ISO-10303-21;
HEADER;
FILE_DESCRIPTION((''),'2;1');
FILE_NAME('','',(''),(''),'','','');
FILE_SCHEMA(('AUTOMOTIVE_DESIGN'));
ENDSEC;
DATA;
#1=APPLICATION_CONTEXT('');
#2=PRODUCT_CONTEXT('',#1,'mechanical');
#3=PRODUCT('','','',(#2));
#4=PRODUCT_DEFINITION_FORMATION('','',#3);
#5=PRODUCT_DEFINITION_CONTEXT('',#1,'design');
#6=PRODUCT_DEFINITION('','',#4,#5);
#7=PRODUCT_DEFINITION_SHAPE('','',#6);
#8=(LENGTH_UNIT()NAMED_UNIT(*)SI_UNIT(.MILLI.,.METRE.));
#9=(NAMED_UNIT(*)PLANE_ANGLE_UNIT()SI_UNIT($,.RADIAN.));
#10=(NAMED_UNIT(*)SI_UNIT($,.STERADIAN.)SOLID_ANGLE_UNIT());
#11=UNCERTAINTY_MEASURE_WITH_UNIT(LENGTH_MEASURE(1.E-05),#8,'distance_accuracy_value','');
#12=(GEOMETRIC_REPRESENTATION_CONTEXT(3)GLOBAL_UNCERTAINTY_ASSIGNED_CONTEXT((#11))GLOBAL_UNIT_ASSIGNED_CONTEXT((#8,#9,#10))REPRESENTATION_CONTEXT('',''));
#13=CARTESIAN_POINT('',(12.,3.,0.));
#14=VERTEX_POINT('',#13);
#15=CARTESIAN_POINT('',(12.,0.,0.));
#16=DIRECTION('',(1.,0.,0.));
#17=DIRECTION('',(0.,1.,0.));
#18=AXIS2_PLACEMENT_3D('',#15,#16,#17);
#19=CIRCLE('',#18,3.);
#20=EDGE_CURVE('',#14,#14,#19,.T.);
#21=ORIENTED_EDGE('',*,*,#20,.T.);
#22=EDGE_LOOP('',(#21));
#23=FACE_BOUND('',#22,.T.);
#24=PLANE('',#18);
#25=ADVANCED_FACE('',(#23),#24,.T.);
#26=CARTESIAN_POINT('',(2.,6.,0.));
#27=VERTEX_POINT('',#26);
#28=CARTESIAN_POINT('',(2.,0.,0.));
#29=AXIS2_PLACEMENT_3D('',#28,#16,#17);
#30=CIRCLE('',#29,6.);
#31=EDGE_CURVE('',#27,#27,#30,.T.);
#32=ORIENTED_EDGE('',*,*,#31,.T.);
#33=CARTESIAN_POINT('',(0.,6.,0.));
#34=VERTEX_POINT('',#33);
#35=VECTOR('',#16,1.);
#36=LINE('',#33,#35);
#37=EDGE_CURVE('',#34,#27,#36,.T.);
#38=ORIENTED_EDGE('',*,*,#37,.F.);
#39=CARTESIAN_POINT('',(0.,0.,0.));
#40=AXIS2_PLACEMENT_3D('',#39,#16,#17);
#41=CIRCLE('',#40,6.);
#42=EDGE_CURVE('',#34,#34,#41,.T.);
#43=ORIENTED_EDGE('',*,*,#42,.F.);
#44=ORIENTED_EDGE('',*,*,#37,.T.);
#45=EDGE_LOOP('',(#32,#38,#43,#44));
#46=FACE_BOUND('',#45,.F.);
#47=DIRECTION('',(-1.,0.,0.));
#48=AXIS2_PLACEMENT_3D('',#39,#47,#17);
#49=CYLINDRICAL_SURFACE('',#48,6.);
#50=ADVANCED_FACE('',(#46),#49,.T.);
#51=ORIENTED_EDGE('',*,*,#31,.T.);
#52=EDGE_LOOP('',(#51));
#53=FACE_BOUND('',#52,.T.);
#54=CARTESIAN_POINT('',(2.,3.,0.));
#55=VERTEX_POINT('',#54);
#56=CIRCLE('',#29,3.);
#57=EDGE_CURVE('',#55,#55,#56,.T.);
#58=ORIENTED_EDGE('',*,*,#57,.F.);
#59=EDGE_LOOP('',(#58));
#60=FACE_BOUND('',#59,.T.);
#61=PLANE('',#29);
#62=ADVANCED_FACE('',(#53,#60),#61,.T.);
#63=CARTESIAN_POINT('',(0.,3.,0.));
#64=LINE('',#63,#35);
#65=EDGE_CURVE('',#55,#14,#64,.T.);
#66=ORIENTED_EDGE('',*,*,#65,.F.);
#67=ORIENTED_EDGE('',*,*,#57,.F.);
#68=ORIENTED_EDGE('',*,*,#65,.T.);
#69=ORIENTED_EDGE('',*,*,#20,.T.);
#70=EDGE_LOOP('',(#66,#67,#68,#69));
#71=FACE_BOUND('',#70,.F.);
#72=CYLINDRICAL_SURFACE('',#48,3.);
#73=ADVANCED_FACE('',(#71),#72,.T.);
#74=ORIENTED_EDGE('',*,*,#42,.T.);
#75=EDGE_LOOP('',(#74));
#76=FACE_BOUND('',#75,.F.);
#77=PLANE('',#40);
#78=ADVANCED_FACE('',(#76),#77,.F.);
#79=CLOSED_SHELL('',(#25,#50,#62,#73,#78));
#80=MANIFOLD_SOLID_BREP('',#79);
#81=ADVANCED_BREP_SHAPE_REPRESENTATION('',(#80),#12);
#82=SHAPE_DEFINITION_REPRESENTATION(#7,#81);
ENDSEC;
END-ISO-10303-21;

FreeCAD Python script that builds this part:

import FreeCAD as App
import Part
import Sketcher
from FreeCAD import Vector
Q = App.Units.Quantity

doc = App.newDocument("Part")
body = doc.addObject("PartDesign::Body", "Body")

sketch1 = body.newObject("Sketcher::SketchObject", "Sketch")
sketch1.AttachmentSupport = (doc.getObject("YZ_Plane"), [""])
sketch1.MapMode = "FlatFace"
sketch1.addGeometry(Part.Circle(Vector(0, 0, 0), Vector(0, 0, 1), 3), False)
sketch1.addConstraint([
    Sketcher.Constraint("Coincident", 0, 3, -1, 1),
    Sketcher.Constraint("Diameter", 0, Q("6 mm")),
])
pad1 = body.newObject("PartDesign::Pad", "Pad")
pad1.Profile = sketch1
pad1.Length = 12

sketch2 = body.newObject("Sketcher::SketchObject", "Sketch001")
sketch2.AttachmentSupport = (doc.getObject("YZ_Plane"), [""])
sketch2.MapMode = "FlatFace"
sketch2.addGeometry([
    Part.Circle(Vector(0, 0, 0), Vector(0, 0, 1), 6),
    Part.Circle(Vector(0, 0, 0), Vector(0, 0, 1), 3),
], False)
sketch2.addConstraint([
    Sketcher.Constraint("Coincident", 0, 3, -1, 1),
    Sketcher.Constraint("Coincident", 1, 3, -1, 1),
    Sketcher.Constraint("Diameter", 0, Q("12 mm")),
    Sketcher.Constraint("Diameter", 1, Q("6 mm")),
])
pad2 = body.newObject("PartDesign::Pad", "Pad001")
pad2.Profile = sketch2
pad2.Length = 2

doc.recompute()
